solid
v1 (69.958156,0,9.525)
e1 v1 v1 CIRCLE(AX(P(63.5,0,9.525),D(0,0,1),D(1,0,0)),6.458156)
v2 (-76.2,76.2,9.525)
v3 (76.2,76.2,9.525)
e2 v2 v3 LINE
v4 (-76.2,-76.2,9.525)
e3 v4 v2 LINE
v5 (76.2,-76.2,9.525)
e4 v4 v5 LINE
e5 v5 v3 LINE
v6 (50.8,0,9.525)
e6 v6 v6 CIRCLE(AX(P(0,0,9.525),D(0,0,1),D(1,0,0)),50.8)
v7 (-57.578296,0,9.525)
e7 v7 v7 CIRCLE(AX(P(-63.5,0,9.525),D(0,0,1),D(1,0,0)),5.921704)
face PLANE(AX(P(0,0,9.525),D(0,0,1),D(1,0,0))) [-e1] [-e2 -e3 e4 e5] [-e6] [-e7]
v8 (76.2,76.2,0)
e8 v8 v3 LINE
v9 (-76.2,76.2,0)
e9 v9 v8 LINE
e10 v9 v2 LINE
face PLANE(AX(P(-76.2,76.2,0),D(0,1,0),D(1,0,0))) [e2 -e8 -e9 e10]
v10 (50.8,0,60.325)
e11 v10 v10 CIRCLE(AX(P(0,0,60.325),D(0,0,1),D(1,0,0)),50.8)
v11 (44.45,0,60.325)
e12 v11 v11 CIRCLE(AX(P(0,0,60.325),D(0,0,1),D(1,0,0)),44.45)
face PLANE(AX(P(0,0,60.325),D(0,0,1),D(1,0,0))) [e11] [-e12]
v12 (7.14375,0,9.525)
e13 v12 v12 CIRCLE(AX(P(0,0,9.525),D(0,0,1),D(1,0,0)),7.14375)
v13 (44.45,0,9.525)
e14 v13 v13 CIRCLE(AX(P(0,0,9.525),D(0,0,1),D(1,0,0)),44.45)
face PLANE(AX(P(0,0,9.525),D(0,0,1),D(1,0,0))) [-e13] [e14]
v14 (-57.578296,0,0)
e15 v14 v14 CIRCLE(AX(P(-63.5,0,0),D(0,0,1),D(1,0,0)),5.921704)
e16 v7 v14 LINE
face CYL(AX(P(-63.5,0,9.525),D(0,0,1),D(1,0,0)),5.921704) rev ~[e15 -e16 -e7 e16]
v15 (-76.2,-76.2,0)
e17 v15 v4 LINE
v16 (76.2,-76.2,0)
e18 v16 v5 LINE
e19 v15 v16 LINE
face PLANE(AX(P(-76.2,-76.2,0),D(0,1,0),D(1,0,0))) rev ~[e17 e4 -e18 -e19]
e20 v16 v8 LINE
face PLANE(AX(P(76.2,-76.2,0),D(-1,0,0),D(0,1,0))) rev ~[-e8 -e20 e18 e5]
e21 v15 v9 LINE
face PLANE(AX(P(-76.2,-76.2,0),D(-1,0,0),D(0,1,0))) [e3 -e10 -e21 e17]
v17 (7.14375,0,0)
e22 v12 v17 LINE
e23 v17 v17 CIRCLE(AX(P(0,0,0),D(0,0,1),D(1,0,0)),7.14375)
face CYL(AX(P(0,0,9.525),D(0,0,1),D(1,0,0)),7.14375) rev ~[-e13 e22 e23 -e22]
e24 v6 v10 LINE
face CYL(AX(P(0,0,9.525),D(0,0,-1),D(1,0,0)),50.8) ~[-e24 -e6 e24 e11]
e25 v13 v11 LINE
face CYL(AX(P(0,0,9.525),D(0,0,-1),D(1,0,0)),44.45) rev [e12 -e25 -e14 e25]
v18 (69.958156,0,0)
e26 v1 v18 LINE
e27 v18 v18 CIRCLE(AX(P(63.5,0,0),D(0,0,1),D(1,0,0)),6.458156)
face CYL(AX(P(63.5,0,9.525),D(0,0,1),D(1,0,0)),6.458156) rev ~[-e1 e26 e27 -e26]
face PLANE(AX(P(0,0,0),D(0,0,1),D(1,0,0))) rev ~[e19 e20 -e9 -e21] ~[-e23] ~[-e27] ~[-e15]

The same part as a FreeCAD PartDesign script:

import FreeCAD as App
import Part
import Sketcher
Q = App.Units.Quantity

doc = App.newDocument("Part")
body = doc.addObject("PartDesign::Body", "Body")

sketch1 = body.newObject("Sketcher::SketchObject", "Sketch")
sketch1.AttachmentSupport = (doc.getObject("XY_Plane"), [""])
sketch1.MapMode = "FlatFace"
sketch1.addGeometry([
    Part.LineSegment(App.Vector(-76.2, 76.2, 0), App.Vector(-76.2, -76.2, 0)),
    Part.LineSegment(App.Vector(-76.2, -76.2, 0), App.Vector(76.2, -76.2, 0)),
    Part.LineSegment(App.Vector(76.2, -76.2, 0), App.Vector(76.2, 76.2, 0)),
    Part.LineSegment(App.Vector(76.2, 76.2, 0), App.Vector(-76.2, 76.2, 0)),
], False)
sketch1.addConstraint([
    Sketcher.Constraint("Coincident", 0, 2, 1, 1),
    Sketcher.Constraint("Coincident", 1, 2, 2, 1),
    Sketcher.Constraint("Coincident", 2, 2, 3, 1),
    Sketcher.Constraint("Coincident", 3, 2, 0, 1),
    Sketcher.Constraint("Vertical", 0),
    Sketcher.Constraint("Horizontal", 1),
    Sketcher.Constraint("Vertical", 2),
    Sketcher.Constraint("Horizontal", 3),
    Sketcher.Constraint("Symmetric", 0, 2, 2, 2, -1, 1),
    Sketcher.Constraint("Equal", 3, 0),
    Sketcher.Constraint("DistanceX", 1, 1, 1, 2, Q("6 in")),
])
pad1 = body.newObject("PartDesign::Pad", "Pad")
pad1.Profile = sketch1
pad1.Length = Q("0.375 in")

sketch2 = body.newObject("Sketcher::SketchObject", "Sketch001")
sketch2.AttachmentSupport = (doc.getObject("XY_Plane"), [""])
sketch2.MapMode = "FlatFace"
sketch2.AttachmentOffset = App.Placement(App.Vector(0, 0, 0.375 * 25.4), App.Rotation())
sketch2.addGeometry([
    Part.Circle(App.Vector(0, 0, 0), App.Vector(0, 0, 1), 50.8),
    Part.Circle(App.Vector(0, 0, 0), App.Vector(0, 0, 1), 44.45),
], False)
sketch2.addConstraint([
    Sketcher.Constraint("Coincident", 0, 3, -1, 1),
    Sketcher.Constraint("Coincident", 1, 3, -1, 1),
    Sketcher.Constraint("Diameter", 0, Q("4 in")),
    Sketcher.Constraint("Diameter", 1, Q("3.5 in")),
])
pad2 = body.newObject("PartDesign::Pad", "Pad001")
pad2.Profile = sketch2
pad2.Length = Q("2 in")

sketch3 = body.newObject("Sketcher::SketchObject", "Sketch002")
sketch3.AttachmentSupport = (doc.getObject("XY_Plane"), [""])
sketch3.MapMode = "FlatFace"
sketch3.AttachmentOffset = App.Placement(App.Vector(0, 0, 0.375 * 25.4), App.Rotation())
sketch3.addGeometry(Part.Circle(App.Vector(0, 0, 0), App.Vector(0, 0, 1), 7.14375), False)
sketch3.addConstraint([
    Sketcher.Constraint("Coincident", 0, 3, -1, 1),
    Sketcher.Constraint("Diameter", 0, Q("0.5625 in")),
])
pocket1 = body.newObject("PartDesign::Pocket", "Pocket")
pocket1.Profile = sketch3
pocket1.Length = Q("1 in")

sketch4 = body.newObject("Sketcher::SketchObject", "Sketch003")
sketch4.AttachmentSupport = (doc.getObject("XY_Plane"), [""])
sketch4.MapMode = "FlatFace"
sketch4.AttachmentOffset = App.Placement(App.Vector(0, 0, 0.375 * 25.4), App.Rotation())
sketch4.addGeometry([
    Part.Circle(App.Vector(63.5, 0, 0), App.Vector(0, 0, 1), 6.458156),
    Part.Circle(App.Vector(-63.5, 0, 0), App.Vector(0, 0, 1), 5.921704),
], False)
sketch4.addConstraint([
    Sketcher.Constraint("Symmetric", 0, 3, 1, 3, -1, 1),
    Sketcher.Constraint("PointOnObject", 0, 3, -1),
    Sketcher.Constraint("DistanceX", 1, 3, 0, 3, Q("5 in")),
    Sketcher.Constraint("Diameter", 0, Q("12.916312 mm")),
    Sketcher.Constraint("Diameter", 1, Q("11.843408 mm")),
])
pocket2 = body.newObject("PartDesign::Pocket", "Pocket001")
pocket2.Profile = sketch4
pocket2.Length = Q("1 in")

doc.recompute()
